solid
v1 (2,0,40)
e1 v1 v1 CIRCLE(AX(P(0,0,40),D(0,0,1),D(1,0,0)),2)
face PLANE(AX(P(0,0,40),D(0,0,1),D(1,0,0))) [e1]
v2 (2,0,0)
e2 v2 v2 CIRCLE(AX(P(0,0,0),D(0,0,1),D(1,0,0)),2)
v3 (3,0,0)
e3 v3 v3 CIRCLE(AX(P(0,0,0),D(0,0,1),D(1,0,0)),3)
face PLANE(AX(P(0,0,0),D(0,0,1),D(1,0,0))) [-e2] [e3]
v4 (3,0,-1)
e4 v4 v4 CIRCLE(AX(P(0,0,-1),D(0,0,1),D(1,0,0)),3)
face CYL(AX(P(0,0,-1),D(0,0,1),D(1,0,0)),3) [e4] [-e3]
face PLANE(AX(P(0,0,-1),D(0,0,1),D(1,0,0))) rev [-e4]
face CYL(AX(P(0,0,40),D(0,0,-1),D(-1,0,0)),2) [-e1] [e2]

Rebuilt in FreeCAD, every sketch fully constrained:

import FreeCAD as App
import Part
import Sketcher
Q = App.Units.Quantity

doc = App.newDocument("Part")
body = doc.addObject("PartDesign::Body", "Body")

sketch1 = doc.addObject("Sketcher::SketchObject", "Sketch")
body.addObject(sketch1)
sketch1.AttachmentSupport = (doc.XY_Plane, [""])
sketch1.MapMode = "FlatFace"
sketch1.addGeometry(Part.Circle(App.Vector(0, 0, 0), App.Vector(0, 0, 1), 2), False)
sketch1.addConstraint([
    Sketcher.Constraint("Coincident", 0, 3, -1, 1),
    Sketcher.Constraint("Diameter", 0, Q("4 mm")),
])
pad1 = doc.addObject("PartDesign::Pad", "Pad")
body.addObject(pad1)
pad1.Profile = sketch1
pad1.Length = 40

sketch2 = doc.addObject("Sketcher::SketchObject", "Sketch001")
body.addObject(sketch2)
sketch2.AttachmentSupport = (doc.XY_Plane, [""])
sketch2.MapMode = "FlatFace"
sketch2.addGeometry(Part.Circle(App.Vector(0, 0, 0), App.Vector(0, 0, 1), 3), False)
sketch2.addConstraint([
    Sketcher.Constraint("Coincident", 0, 3, -1, 1),
    Sketcher.Constraint("Diameter", 0, Q("6 mm")),
])
pad2 = doc.addObject("PartDesign::Pad", "Pad001")
body.addObject(pad2)
pad2.Profile = sketch2
pad2.Length = 1
pad2.Reversed = True

doc.recompute()
